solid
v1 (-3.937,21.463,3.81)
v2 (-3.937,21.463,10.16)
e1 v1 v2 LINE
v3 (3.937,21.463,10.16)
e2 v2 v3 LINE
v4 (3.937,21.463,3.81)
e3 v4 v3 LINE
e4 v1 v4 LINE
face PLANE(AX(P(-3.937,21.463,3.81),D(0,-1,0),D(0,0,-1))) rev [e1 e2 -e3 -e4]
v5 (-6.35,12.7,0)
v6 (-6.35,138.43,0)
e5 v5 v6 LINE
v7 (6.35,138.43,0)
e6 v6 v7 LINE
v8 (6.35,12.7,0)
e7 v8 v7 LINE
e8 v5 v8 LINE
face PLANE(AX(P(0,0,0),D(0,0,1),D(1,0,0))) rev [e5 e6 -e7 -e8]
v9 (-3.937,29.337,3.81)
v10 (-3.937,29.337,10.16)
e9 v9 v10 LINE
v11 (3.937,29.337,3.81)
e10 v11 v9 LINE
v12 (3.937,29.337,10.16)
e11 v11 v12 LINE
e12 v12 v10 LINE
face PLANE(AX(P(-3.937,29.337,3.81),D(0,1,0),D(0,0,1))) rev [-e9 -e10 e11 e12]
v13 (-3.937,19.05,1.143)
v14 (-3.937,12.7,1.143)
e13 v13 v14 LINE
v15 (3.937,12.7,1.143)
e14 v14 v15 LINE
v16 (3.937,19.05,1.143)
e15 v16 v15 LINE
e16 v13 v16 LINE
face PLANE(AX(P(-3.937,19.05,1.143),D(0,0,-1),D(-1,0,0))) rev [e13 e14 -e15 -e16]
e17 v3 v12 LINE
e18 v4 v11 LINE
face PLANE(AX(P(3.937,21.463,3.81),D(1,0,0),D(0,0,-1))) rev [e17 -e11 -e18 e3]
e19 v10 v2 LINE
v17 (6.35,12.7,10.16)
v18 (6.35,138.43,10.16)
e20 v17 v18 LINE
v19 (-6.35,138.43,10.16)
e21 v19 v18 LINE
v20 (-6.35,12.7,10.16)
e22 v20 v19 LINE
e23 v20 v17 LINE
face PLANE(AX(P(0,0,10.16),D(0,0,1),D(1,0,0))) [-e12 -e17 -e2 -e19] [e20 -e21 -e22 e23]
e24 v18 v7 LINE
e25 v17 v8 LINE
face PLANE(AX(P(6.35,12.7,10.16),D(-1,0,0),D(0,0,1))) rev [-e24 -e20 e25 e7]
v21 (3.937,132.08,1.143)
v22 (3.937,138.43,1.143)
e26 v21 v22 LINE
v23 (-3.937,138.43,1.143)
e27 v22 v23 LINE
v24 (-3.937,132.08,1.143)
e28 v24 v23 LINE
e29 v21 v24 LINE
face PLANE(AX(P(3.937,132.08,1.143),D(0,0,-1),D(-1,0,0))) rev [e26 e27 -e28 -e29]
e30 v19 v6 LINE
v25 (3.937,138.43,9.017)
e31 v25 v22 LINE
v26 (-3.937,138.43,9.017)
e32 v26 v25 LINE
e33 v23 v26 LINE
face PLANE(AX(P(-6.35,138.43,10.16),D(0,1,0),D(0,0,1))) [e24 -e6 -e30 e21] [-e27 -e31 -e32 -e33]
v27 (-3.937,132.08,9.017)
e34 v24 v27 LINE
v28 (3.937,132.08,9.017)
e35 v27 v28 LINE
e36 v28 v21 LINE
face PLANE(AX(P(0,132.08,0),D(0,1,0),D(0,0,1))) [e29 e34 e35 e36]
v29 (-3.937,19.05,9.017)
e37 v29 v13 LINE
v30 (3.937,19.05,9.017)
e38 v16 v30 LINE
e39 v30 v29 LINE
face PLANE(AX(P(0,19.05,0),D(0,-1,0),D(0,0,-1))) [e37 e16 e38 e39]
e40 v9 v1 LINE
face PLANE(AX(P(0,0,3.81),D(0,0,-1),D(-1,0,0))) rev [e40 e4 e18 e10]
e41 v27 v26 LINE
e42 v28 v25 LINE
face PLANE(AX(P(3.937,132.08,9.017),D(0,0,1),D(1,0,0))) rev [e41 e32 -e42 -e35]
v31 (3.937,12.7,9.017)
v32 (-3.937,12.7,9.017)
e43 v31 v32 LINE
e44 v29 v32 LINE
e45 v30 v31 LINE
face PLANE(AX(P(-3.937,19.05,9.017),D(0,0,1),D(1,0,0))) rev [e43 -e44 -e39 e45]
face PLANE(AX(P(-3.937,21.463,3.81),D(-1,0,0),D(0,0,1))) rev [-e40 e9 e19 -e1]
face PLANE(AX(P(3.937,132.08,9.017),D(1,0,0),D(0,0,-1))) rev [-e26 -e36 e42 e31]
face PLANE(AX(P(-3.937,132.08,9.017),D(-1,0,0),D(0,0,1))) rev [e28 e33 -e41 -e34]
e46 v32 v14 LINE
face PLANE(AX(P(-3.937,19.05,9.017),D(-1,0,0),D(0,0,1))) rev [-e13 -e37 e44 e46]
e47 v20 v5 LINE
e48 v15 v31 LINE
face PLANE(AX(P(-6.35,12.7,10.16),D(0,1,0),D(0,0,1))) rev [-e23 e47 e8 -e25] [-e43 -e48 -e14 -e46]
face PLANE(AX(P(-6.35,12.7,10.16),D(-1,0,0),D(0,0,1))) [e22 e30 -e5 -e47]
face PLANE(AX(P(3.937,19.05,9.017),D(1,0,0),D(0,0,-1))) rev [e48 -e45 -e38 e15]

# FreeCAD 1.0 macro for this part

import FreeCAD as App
import Part
import Sketcher
Q = App.Units.Quantity

doc = App.newDocument("Part")
body = doc.addObject("PartDesign::Body", "Body")

# Sketch on XY plane
sketch1 = body.newObject("Sketcher::SketchObject", "Sketch")
sketch1.AttachmentSupport = (doc.getObject("XY_Plane"), [""])
sketch1.MapMode = "FlatFace"
sketch1.addGeometry([
    Part.LineSegment(App.Vector(-6.35, 138.43, 0), App.Vector(-6.35, 12.7, 0)),
    Part.LineSegment(App.Vector(-6.35, 12.7, 0), App.Vector(6.35, 12.7, 0)),
    Part.LineSegment(App.Vector(6.35, 12.7, 0), App.Vector(6.35, 138.43, 0)),
    Part.LineSegment(App.Vector(6.35, 138.43, 0), App.Vector(-6.35, 138.43, 0)),
], False)
sketch1.addConstraint([
    Sketcher.Constraint("Coincident", 0, 2, 1, 1),
    Sketcher.Constraint("Coincident", 1, 2, 2, 1),
    Sketcher.Constraint("Coincident", 2, 2, 3, 1),
    Sketcher.Constraint("Coincident", 3, 2, 0, 1),
    Sketcher.Constraint("Vertical", 0),
    Sketcher.Constraint("Horizontal", 1),
    Sketcher.Constraint("Vertical", 2),
    Sketcher.Constraint("Horizontal", 3),
    Sketcher.Constraint("DistanceX", 1, 1, 1, 2, Q("0.5 in")),
    Sketcher.Constraint("DistanceY", 0, 2, 0, 1, Q("4.95 in")),
    Sketcher.Constraint("DistanceY", -1, 1, 0, 2, Q("0.5 in")),
    Sketcher.Constraint("DistanceX", 0, 2, -1, 1, Q("0.25 in")),
])
pad1 = body.newObject("PartDesign::Pad", "Pad")
pad1.Profile = sketch1
pad1.Length = Q("0.4 in")

# Sketch on XZ plane
sketch2 = body.newObject("Sketcher::SketchObject", "Sketch001")
sketch2.AttachmentSupport = (doc.getObject("XZ_Plane"), [""])
sketch2.MapMode = "FlatFace"
sketch2.AttachmentOffset = App.Placement(App.Vector(0, 0, -5.45 * 25.4), App.Rotation())
sketch2.addGeometry([
    Part.LineSegment(App.Vector(-3.937, 1.143, 0), App.Vector(-3.937, 9.017, 0)),
    Part.LineSegment(App.Vector(-3.937, 9.017, 0), App.Vector(3.937, 9.017, 0)),
    Part.LineSegment(App.Vector(3.937, 9.017, 0), App.Vector(3.937, 1.143, 0)),
    Part.LineSegment(App.Vector(3.937, 1.143, 0), App.Vector(-3.937, 1.143, 0)),
], False)
sketch2.addConstraint([
    Sketcher.Constraint("Coincident", 0, 2, 1, 1),
    Sketcher.Constraint("Coincident", 1, 2, 2, 1),
    Sketcher.Constraint("Coincident", 2, 2, 3, 1),
    Sketcher.Constraint("Coincident", 3, 2, 0, 1),
    Sketcher.Constraint("Vertical", 0),
    Sketcher.Constraint("Horizontal", 1),
    Sketcher.Constraint("Vertical", 2),
    Sketcher.Constraint("Horizontal", 3),
    Sketcher.Constraint("Equal", 3, 0),
    Sketcher.Constraint("DistanceX", 1, 1, 1, 2, Q("0.31 in")),
    Sketcher.Constraint("DistanceX", 0, 2, -1, 1, Q("0.155 in")),
    Sketcher.Constraint("DistanceY", -1, 1, 0, 2, Q("0.355 in")),
])
pocket1 = body.newObject("PartDesign::Pocket", "Pocket")
pocket1.Profile = sketch2
pocket1.Length = Q("0.25 in")
pocket1.Reversed = True

# Sketch on XY plane
sketch3 = body.newObject("Sketcher::SketchObject", "Sketch002")
sketch3.AttachmentSupport = (doc.getObject("XY_Plane"), [""])
sketch3.MapMode = "FlatFace"
sketch3.AttachmentOffset = App.Placement(App.Vector(0, 0, 0.4 * 25.4), App.Rotation())
sketch3.addGeometry([
    Part.LineSegment(App.Vector(-3.937, 29.337, 0), App.Vector(-3.937, 21.463, 0)),
    Part.LineSegment(App.Vector(-3.937, 21.463, 0), App.Vector(3.937, 21.463, 0)),
    Part.LineSegment(App.Vector(3.937, 21.463, 0), App.Vector(3.937, 29.337, 0)),
    Part.LineSegment(App.Vector(3.937, 29.337, 0), App.Vector(-3.937, 29.337, 0)),
], False)
sketch3.addConstraint([
    Sketcher.Constraint("Coincident", 0, 2, 1, 1),
    Sketcher.Constraint("Coincident", 1, 2, 2, 1),
    Sketcher.Constraint("Coincident", 2, 2, 3, 1),
    Sketcher.Constraint("Coincident", 3, 2, 0, 1),
    Sketcher.Constraint("Vertical", 0),
    Sketcher.Constraint("Horizontal", 1),
    Sketcher.Constraint("Vertical", 2),
    Sketcher.Constraint("Horizontal", 3),
    Sketcher.Constraint("Equal", 3, 0),
    Sketcher.Constraint("DistanceX", 1, 1, 1, 2, Q("0.31 in")),
    Sketcher.Constraint("DistanceX", 0, 2, -1, 1, Q("0.155 in")),
    Sketcher.Constraint("DistanceY", -1, 1, 0, 2, Q("0.845 in")),
])
pocket2 = body.newObject("PartDesign::Pocket", "Pocket001")
pocket2.Profile = sketch3
pocket2.Length = Q("0.25 in")

# Sketch on XZ plane
sketch4 = body.newObject("Sketcher::SketchObject", "Sketch003")
sketch4.AttachmentSupport = (doc.getObject("XZ_Plane"), [""])
sketch4.MapMode = "FlatFace"
sketch4.AttachmentOffset = App.Placement(App.Vector(0, 0, -0.5 * 25.4), App.Rotation())
sketch4.addGeometry([
    Part.LineSegment(App.Vector(-3.937, 9.017, 0), App.Vector(-3.937, 1.143, 0)),
    Part.LineSegment(App.Vector(-3.937, 1.143, 0), App.Vector(3.937, 1.143, 0)),
    Part.LineSegment(App.Vector(3.937, 1.143, 0), App.Vector(3.937, 9.017, 0)),
    Part.LineSegment(App.Vector(3.937, 9.017, 0), App.Vector(-3.937, 9.017, 0)),
], False)
sketch4.addConstraint([
    Sketcher.Constraint("Coincident", 0, 2, 1, 1),
    Sketcher.Constraint("Coincident", 1, 2, 2, 1),
    Sketcher.Constraint("Coincident", 2, 2, 3, 1),
    Sketcher.Constraint("Coincident", 3, 2, 0, 1),
    Sketcher.Constraint("Vertical", 0),
    Sketcher.Constraint("Horizontal", 1),
    Sketcher.Constraint("Vertical", 2),
    Sketcher.Constraint("Horizontal", 3),
    Sketcher.Constraint("Equal", 3, 0),
    Sketcher.Constraint("DistanceX", 1, 1, 1, 2, Q("0.31 in")),
    Sketcher.Constraint("DistanceX", 0, 2, -1, 1, Q("0.155 in")),
    Sketcher.Constraint("DistanceY", -1, 1, 0, 2, Q("0.045 in")),
])
pocket3 = body.newObject("PartDesign::Pocket", "Pocket002")
pocket3.Profile = sketch4
pocket3.Length = Q("0.25 in")

doc.recompute()
